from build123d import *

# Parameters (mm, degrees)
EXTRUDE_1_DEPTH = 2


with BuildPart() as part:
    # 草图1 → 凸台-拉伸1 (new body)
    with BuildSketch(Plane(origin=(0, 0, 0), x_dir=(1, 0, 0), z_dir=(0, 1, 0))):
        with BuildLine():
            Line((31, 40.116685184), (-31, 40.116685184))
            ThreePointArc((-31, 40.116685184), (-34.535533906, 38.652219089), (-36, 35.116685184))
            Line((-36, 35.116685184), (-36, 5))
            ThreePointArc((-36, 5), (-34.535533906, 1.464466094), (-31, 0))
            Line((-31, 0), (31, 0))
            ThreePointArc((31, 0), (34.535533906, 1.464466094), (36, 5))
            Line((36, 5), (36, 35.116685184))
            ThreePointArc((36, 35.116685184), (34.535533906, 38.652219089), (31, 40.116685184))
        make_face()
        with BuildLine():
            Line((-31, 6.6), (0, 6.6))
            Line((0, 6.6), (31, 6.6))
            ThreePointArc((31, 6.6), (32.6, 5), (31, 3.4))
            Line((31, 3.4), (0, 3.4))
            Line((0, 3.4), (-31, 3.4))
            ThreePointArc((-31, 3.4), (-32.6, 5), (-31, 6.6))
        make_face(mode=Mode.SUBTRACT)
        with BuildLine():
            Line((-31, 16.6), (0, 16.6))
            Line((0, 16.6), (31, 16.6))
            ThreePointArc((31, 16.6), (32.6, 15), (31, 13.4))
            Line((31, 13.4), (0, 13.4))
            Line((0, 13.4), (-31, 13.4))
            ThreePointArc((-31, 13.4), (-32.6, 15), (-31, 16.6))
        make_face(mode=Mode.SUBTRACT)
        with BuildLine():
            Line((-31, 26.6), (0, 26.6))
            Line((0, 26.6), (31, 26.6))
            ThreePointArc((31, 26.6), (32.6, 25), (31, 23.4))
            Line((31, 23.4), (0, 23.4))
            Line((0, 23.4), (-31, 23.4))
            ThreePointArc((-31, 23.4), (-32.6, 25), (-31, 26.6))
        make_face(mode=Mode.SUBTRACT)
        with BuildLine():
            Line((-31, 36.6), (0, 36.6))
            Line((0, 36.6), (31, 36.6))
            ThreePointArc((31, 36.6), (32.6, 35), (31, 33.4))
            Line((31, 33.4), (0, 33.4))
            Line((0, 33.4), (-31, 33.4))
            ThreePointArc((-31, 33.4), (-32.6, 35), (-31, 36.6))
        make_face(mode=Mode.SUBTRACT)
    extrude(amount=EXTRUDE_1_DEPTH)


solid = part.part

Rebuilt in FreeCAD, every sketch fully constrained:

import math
import FreeCAD as App
import Part
import Sketcher

V = App.Vector
Q = App.Units.Quantity

doc = App.newDocument("Part")
params = doc.addObject("Spreadsheet::Sheet", "Params")
for row, (alias, value) in enumerate([
    ("sketch1_radius", "5 mm"),
    ("sketch1_radius2", "1.6 mm"),
    ("sketch1_width", "62 mm"),
    ("pad1_length", "2 mm"),
], start=1):
    params.set(f"A{row}", alias)
    params.set(f"B{row}", "=" + value)
    params.setAlias(f"B{row}", alias)

body = doc.addObject("PartDesign::Body", "Body")

# Sketch on XZ plane
sketch1 = doc.addObject("Sketcher::SketchObject", "Sketch")
body.addObject(sketch1)
sketch1.AttachmentSupport = (doc.XZ_Plane, [""])
sketch1.MapMode = "FlatFace"
sketch1.addGeometry([
    Part.LineSegment(V(31, -40.1, 0), V(-31, -40.1, 0)),  # 0
    Part.ArcOfCircle(Part.Circle(V(-31, -35.1, 0), V(0, 0, 1), 5), math.radians(-180), math.radians(-90)),  # 1
    Part.LineSegment(V(-36, -35.1, 0), V(-36, -5, 0)),  # 2
    Part.ArcOfCircle(Part.Circle(V(-31, -5, 0), V(0, 0, 1), 5), math.radians(90), math.radians(180)),  # 3
    Part.LineSegment(V(-31, 0, 0), V(31, 0, 0)),  # 4
    Part.ArcOfCircle(Part.Circle(V(31, -5, 0), V(0, 0, 1), 5), math.radians(0), math.radians(90)),  # 5
    Part.LineSegment(V(36, -5, 0), V(36, -35.1, 0)),  # 6
    Part.ArcOfCircle(Part.Circle(V(31, -35.1, 0), V(0, 0, 1), 5), math.radians(-90), math.radians(0)),  # 7
    Part.ArcOfCircle(Part.Circle(V(-31, -5, 0), V(0, 0, 1), 1.6), math.radians(90), math.radians(270)),  # 8
    Part.LineSegment(V(-31, -6.6, 0), V(31, -6.6, 0)),  # 9
    Part.ArcOfCircle(Part.Circle(V(31, -5, 0), V(0, 0, 1), 1.6), math.radians(-90), math.radians(90)),  # 10
    Part.LineSegment(V(31, -3.4, 0), V(-31, -3.4, 0)),  # 11
    Part.ArcOfCircle(Part.Circle(V(-31, -15, 0), V(0, 0, 1), 1.6), math.radians(90), math.radians(270)),  # 12
    Part.LineSegment(V(-31, -16.6, 0), V(31, -16.6, 0)),  # 13
    Part.ArcOfCircle(Part.Circle(V(31, -15, 0), V(0, 0, 1), 1.6), math.radians(-90), math.radians(90)),  # 14
    Part.LineSegment(V(31, -13.4, 0), V(-31, -13.4, 0)),  # 15
    Part.ArcOfCircle(Part.Circle(V(-31, -25, 0), V(0, 0, 1), 1.6), math.radians(90), math.radians(270)),  # 16
    Part.LineSegment(V(-31, -26.6, 0), V(31, -26.6, 0)),  # 17
    Part.ArcOfCircle(Part.Circle(V(31, -25, 0), V(0, 0, 1), 1.6), math.radians(-90), math.radians(90)),  # 18
    Part.LineSegment(V(31, -23.4, 0), V(-31, -23.4, 0)),  # 19
    Part.ArcOfCircle(Part.Circle(V(-31, -35, 0), V(0, 0, 1), 1.6), math.radians(90), math.radians(270)),  # 20
    Part.LineSegment(V(-31, -36.6, 0), V(31, -36.6, 0)),  # 21
    Part.ArcOfCircle(Part.Circle(V(31, -35, 0), V(0, 0, 1), 1.6), math.radians(-90), math.radians(90)),  # 22
    Part.LineSegment(V(31, -33.4, 0), V(-31, -33.4, 0)),  # 23
], False)
sketch1.addConstraint([
    Sketcher.Constraint("Tangent", 0, 2, 1, 2),
    Sketcher.Constraint("Tangent", 1, 1, 2, 1),
    Sketcher.Constraint("Tangent", 2, 2, 3, 2),
    Sketcher.Constraint("Tangent", 3, 1, 4, 1),
    Sketcher.Constraint("Tangent", 4, 2, 5, 2),
    Sketcher.Constraint("Tangent", 5, 1, 6, 1),
    Sketcher.Constraint("Tangent", 6, 2, 7, 2),
    Sketcher.Constraint("Tangent", 7, 1, 0, 1),
    Sketcher.Constraint("Tangent", 8, 2, 9, 1),
    Sketcher.Constraint("Tangent", 9, 2, 10, 1),
    Sketcher.Constraint("Tangent", 10, 2, 11, 1),
    Sketcher.Constraint("Tangent", 11, 2, 8, 1),
    Sketcher.Constraint("Tangent", 12, 2, 13, 1),
    Sketcher.Constraint("Tangent", 13, 2, 14, 1),
    Sketcher.Constraint("Tangent", 14, 2, 15, 1),
    Sketcher.Constraint("Tangent", 15, 2, 12, 1),
    Sketcher.Constraint("Tangent", 16, 2, 17, 1),
    Sketcher.Constraint("Tangent", 17, 2, 18, 1),
    Sketcher.Constraint("Tangent", 18, 2, 19, 1),
    Sketcher.Constraint("Tangent", 19, 2, 16, 1),
    Sketcher.Constraint("Tangent", 20, 2, 21, 1),
    Sketcher.Constraint("Tangent", 21, 2, 22, 1),
    Sketcher.Constraint("Tangent", 22, 2, 23, 1),
    Sketcher.Constraint("Tangent", 23, 2, 20, 1),
    Sketcher.Constraint("Horizontal", 0),
    Sketcher.Constraint("Vertical", 2),
    Sketcher.Constraint("Horizontal", 4),
    Sketcher.Constraint("Vertical", 6),
    Sketcher.Constraint("Horizontal", 9),
    Sketcher.Constraint("Horizontal", 11),
    Sketcher.Constraint("Horizontal", 13),
    Sketcher.Constraint("Horizontal", 15),
    Sketcher.Constraint("Horizontal", 17),
    Sketcher.Constraint("Horizontal", 19),
    Sketcher.Constraint("Horizontal", 21),
    Sketcher.Constraint("Horizontal", 23),
    Sketcher.Constraint("Coincident", 8, 3, 3, 3),
    Sketcher.Constraint("Coincident", 10, 3, 5, 3),
    Sketcher.Constraint("Equal", 1, 3),
    Sketcher.Constraint("Equal", 5, 7),
    Sketcher.Constraint("Equal", 10, 12),
    Sketcher.Constraint("Equal", 14, 16),
    Sketcher.Constraint("Equal", 18, 20),
    Sketcher.Constraint("Symmetric", 3, 1, 4, 2, -1, 1),
    Sketcher.Constraint("Vertical", 8, 3, 12, 3),
    Sketcher.Constraint("Vertical", 10, 3, 14, 3),
    Sketcher.Constraint("Vertical", 12, 3, 16, 3),
    Sketcher.Constraint("Vertical", 14, 3, 18, 3),
    Sketcher.Constraint("Vertical", 16, 3, 20, 3),
    Sketcher.Constraint("Vertical", 18, 3, 22, 3),
    Sketcher.Constraint("Radius", 1, Q("5 mm")),
    Sketcher.Constraint("Radius", 8, Q("1.6 mm")),
    Sketcher.Constraint("DistanceX", 0, 2, 0, 1, Q("62 mm")),
    Sketcher.Constraint("DistanceY", 12, 3, -1, 1, Q("15 mm")),
    Sketcher.Constraint("DistanceY", 16, 3, -1, 1, Q("25 mm")),
    Sketcher.Constraint("DistanceY", 20, 3, -1, 1, Q("35 mm")),
    Sketcher.Constraint("DistanceY", 2, 1, 2, 2, Q("30.116685 mm")),
])
sketch1.setExpression("Constraints[50]", "Params.sketch1_radius")
sketch1.setExpression("Constraints[51]", "Params.sketch1_radius2")
sketch1.setExpression("Constraints[52]", "Params.sketch1_width")
pad1 = doc.addObject("PartDesign::Pad", "Pad")
body.addObject(pad1)
pad1.Profile = sketch1
pad1.setExpression("Length", "Params.pad1_length")
pad1.Reversed = True

doc.recompute()
